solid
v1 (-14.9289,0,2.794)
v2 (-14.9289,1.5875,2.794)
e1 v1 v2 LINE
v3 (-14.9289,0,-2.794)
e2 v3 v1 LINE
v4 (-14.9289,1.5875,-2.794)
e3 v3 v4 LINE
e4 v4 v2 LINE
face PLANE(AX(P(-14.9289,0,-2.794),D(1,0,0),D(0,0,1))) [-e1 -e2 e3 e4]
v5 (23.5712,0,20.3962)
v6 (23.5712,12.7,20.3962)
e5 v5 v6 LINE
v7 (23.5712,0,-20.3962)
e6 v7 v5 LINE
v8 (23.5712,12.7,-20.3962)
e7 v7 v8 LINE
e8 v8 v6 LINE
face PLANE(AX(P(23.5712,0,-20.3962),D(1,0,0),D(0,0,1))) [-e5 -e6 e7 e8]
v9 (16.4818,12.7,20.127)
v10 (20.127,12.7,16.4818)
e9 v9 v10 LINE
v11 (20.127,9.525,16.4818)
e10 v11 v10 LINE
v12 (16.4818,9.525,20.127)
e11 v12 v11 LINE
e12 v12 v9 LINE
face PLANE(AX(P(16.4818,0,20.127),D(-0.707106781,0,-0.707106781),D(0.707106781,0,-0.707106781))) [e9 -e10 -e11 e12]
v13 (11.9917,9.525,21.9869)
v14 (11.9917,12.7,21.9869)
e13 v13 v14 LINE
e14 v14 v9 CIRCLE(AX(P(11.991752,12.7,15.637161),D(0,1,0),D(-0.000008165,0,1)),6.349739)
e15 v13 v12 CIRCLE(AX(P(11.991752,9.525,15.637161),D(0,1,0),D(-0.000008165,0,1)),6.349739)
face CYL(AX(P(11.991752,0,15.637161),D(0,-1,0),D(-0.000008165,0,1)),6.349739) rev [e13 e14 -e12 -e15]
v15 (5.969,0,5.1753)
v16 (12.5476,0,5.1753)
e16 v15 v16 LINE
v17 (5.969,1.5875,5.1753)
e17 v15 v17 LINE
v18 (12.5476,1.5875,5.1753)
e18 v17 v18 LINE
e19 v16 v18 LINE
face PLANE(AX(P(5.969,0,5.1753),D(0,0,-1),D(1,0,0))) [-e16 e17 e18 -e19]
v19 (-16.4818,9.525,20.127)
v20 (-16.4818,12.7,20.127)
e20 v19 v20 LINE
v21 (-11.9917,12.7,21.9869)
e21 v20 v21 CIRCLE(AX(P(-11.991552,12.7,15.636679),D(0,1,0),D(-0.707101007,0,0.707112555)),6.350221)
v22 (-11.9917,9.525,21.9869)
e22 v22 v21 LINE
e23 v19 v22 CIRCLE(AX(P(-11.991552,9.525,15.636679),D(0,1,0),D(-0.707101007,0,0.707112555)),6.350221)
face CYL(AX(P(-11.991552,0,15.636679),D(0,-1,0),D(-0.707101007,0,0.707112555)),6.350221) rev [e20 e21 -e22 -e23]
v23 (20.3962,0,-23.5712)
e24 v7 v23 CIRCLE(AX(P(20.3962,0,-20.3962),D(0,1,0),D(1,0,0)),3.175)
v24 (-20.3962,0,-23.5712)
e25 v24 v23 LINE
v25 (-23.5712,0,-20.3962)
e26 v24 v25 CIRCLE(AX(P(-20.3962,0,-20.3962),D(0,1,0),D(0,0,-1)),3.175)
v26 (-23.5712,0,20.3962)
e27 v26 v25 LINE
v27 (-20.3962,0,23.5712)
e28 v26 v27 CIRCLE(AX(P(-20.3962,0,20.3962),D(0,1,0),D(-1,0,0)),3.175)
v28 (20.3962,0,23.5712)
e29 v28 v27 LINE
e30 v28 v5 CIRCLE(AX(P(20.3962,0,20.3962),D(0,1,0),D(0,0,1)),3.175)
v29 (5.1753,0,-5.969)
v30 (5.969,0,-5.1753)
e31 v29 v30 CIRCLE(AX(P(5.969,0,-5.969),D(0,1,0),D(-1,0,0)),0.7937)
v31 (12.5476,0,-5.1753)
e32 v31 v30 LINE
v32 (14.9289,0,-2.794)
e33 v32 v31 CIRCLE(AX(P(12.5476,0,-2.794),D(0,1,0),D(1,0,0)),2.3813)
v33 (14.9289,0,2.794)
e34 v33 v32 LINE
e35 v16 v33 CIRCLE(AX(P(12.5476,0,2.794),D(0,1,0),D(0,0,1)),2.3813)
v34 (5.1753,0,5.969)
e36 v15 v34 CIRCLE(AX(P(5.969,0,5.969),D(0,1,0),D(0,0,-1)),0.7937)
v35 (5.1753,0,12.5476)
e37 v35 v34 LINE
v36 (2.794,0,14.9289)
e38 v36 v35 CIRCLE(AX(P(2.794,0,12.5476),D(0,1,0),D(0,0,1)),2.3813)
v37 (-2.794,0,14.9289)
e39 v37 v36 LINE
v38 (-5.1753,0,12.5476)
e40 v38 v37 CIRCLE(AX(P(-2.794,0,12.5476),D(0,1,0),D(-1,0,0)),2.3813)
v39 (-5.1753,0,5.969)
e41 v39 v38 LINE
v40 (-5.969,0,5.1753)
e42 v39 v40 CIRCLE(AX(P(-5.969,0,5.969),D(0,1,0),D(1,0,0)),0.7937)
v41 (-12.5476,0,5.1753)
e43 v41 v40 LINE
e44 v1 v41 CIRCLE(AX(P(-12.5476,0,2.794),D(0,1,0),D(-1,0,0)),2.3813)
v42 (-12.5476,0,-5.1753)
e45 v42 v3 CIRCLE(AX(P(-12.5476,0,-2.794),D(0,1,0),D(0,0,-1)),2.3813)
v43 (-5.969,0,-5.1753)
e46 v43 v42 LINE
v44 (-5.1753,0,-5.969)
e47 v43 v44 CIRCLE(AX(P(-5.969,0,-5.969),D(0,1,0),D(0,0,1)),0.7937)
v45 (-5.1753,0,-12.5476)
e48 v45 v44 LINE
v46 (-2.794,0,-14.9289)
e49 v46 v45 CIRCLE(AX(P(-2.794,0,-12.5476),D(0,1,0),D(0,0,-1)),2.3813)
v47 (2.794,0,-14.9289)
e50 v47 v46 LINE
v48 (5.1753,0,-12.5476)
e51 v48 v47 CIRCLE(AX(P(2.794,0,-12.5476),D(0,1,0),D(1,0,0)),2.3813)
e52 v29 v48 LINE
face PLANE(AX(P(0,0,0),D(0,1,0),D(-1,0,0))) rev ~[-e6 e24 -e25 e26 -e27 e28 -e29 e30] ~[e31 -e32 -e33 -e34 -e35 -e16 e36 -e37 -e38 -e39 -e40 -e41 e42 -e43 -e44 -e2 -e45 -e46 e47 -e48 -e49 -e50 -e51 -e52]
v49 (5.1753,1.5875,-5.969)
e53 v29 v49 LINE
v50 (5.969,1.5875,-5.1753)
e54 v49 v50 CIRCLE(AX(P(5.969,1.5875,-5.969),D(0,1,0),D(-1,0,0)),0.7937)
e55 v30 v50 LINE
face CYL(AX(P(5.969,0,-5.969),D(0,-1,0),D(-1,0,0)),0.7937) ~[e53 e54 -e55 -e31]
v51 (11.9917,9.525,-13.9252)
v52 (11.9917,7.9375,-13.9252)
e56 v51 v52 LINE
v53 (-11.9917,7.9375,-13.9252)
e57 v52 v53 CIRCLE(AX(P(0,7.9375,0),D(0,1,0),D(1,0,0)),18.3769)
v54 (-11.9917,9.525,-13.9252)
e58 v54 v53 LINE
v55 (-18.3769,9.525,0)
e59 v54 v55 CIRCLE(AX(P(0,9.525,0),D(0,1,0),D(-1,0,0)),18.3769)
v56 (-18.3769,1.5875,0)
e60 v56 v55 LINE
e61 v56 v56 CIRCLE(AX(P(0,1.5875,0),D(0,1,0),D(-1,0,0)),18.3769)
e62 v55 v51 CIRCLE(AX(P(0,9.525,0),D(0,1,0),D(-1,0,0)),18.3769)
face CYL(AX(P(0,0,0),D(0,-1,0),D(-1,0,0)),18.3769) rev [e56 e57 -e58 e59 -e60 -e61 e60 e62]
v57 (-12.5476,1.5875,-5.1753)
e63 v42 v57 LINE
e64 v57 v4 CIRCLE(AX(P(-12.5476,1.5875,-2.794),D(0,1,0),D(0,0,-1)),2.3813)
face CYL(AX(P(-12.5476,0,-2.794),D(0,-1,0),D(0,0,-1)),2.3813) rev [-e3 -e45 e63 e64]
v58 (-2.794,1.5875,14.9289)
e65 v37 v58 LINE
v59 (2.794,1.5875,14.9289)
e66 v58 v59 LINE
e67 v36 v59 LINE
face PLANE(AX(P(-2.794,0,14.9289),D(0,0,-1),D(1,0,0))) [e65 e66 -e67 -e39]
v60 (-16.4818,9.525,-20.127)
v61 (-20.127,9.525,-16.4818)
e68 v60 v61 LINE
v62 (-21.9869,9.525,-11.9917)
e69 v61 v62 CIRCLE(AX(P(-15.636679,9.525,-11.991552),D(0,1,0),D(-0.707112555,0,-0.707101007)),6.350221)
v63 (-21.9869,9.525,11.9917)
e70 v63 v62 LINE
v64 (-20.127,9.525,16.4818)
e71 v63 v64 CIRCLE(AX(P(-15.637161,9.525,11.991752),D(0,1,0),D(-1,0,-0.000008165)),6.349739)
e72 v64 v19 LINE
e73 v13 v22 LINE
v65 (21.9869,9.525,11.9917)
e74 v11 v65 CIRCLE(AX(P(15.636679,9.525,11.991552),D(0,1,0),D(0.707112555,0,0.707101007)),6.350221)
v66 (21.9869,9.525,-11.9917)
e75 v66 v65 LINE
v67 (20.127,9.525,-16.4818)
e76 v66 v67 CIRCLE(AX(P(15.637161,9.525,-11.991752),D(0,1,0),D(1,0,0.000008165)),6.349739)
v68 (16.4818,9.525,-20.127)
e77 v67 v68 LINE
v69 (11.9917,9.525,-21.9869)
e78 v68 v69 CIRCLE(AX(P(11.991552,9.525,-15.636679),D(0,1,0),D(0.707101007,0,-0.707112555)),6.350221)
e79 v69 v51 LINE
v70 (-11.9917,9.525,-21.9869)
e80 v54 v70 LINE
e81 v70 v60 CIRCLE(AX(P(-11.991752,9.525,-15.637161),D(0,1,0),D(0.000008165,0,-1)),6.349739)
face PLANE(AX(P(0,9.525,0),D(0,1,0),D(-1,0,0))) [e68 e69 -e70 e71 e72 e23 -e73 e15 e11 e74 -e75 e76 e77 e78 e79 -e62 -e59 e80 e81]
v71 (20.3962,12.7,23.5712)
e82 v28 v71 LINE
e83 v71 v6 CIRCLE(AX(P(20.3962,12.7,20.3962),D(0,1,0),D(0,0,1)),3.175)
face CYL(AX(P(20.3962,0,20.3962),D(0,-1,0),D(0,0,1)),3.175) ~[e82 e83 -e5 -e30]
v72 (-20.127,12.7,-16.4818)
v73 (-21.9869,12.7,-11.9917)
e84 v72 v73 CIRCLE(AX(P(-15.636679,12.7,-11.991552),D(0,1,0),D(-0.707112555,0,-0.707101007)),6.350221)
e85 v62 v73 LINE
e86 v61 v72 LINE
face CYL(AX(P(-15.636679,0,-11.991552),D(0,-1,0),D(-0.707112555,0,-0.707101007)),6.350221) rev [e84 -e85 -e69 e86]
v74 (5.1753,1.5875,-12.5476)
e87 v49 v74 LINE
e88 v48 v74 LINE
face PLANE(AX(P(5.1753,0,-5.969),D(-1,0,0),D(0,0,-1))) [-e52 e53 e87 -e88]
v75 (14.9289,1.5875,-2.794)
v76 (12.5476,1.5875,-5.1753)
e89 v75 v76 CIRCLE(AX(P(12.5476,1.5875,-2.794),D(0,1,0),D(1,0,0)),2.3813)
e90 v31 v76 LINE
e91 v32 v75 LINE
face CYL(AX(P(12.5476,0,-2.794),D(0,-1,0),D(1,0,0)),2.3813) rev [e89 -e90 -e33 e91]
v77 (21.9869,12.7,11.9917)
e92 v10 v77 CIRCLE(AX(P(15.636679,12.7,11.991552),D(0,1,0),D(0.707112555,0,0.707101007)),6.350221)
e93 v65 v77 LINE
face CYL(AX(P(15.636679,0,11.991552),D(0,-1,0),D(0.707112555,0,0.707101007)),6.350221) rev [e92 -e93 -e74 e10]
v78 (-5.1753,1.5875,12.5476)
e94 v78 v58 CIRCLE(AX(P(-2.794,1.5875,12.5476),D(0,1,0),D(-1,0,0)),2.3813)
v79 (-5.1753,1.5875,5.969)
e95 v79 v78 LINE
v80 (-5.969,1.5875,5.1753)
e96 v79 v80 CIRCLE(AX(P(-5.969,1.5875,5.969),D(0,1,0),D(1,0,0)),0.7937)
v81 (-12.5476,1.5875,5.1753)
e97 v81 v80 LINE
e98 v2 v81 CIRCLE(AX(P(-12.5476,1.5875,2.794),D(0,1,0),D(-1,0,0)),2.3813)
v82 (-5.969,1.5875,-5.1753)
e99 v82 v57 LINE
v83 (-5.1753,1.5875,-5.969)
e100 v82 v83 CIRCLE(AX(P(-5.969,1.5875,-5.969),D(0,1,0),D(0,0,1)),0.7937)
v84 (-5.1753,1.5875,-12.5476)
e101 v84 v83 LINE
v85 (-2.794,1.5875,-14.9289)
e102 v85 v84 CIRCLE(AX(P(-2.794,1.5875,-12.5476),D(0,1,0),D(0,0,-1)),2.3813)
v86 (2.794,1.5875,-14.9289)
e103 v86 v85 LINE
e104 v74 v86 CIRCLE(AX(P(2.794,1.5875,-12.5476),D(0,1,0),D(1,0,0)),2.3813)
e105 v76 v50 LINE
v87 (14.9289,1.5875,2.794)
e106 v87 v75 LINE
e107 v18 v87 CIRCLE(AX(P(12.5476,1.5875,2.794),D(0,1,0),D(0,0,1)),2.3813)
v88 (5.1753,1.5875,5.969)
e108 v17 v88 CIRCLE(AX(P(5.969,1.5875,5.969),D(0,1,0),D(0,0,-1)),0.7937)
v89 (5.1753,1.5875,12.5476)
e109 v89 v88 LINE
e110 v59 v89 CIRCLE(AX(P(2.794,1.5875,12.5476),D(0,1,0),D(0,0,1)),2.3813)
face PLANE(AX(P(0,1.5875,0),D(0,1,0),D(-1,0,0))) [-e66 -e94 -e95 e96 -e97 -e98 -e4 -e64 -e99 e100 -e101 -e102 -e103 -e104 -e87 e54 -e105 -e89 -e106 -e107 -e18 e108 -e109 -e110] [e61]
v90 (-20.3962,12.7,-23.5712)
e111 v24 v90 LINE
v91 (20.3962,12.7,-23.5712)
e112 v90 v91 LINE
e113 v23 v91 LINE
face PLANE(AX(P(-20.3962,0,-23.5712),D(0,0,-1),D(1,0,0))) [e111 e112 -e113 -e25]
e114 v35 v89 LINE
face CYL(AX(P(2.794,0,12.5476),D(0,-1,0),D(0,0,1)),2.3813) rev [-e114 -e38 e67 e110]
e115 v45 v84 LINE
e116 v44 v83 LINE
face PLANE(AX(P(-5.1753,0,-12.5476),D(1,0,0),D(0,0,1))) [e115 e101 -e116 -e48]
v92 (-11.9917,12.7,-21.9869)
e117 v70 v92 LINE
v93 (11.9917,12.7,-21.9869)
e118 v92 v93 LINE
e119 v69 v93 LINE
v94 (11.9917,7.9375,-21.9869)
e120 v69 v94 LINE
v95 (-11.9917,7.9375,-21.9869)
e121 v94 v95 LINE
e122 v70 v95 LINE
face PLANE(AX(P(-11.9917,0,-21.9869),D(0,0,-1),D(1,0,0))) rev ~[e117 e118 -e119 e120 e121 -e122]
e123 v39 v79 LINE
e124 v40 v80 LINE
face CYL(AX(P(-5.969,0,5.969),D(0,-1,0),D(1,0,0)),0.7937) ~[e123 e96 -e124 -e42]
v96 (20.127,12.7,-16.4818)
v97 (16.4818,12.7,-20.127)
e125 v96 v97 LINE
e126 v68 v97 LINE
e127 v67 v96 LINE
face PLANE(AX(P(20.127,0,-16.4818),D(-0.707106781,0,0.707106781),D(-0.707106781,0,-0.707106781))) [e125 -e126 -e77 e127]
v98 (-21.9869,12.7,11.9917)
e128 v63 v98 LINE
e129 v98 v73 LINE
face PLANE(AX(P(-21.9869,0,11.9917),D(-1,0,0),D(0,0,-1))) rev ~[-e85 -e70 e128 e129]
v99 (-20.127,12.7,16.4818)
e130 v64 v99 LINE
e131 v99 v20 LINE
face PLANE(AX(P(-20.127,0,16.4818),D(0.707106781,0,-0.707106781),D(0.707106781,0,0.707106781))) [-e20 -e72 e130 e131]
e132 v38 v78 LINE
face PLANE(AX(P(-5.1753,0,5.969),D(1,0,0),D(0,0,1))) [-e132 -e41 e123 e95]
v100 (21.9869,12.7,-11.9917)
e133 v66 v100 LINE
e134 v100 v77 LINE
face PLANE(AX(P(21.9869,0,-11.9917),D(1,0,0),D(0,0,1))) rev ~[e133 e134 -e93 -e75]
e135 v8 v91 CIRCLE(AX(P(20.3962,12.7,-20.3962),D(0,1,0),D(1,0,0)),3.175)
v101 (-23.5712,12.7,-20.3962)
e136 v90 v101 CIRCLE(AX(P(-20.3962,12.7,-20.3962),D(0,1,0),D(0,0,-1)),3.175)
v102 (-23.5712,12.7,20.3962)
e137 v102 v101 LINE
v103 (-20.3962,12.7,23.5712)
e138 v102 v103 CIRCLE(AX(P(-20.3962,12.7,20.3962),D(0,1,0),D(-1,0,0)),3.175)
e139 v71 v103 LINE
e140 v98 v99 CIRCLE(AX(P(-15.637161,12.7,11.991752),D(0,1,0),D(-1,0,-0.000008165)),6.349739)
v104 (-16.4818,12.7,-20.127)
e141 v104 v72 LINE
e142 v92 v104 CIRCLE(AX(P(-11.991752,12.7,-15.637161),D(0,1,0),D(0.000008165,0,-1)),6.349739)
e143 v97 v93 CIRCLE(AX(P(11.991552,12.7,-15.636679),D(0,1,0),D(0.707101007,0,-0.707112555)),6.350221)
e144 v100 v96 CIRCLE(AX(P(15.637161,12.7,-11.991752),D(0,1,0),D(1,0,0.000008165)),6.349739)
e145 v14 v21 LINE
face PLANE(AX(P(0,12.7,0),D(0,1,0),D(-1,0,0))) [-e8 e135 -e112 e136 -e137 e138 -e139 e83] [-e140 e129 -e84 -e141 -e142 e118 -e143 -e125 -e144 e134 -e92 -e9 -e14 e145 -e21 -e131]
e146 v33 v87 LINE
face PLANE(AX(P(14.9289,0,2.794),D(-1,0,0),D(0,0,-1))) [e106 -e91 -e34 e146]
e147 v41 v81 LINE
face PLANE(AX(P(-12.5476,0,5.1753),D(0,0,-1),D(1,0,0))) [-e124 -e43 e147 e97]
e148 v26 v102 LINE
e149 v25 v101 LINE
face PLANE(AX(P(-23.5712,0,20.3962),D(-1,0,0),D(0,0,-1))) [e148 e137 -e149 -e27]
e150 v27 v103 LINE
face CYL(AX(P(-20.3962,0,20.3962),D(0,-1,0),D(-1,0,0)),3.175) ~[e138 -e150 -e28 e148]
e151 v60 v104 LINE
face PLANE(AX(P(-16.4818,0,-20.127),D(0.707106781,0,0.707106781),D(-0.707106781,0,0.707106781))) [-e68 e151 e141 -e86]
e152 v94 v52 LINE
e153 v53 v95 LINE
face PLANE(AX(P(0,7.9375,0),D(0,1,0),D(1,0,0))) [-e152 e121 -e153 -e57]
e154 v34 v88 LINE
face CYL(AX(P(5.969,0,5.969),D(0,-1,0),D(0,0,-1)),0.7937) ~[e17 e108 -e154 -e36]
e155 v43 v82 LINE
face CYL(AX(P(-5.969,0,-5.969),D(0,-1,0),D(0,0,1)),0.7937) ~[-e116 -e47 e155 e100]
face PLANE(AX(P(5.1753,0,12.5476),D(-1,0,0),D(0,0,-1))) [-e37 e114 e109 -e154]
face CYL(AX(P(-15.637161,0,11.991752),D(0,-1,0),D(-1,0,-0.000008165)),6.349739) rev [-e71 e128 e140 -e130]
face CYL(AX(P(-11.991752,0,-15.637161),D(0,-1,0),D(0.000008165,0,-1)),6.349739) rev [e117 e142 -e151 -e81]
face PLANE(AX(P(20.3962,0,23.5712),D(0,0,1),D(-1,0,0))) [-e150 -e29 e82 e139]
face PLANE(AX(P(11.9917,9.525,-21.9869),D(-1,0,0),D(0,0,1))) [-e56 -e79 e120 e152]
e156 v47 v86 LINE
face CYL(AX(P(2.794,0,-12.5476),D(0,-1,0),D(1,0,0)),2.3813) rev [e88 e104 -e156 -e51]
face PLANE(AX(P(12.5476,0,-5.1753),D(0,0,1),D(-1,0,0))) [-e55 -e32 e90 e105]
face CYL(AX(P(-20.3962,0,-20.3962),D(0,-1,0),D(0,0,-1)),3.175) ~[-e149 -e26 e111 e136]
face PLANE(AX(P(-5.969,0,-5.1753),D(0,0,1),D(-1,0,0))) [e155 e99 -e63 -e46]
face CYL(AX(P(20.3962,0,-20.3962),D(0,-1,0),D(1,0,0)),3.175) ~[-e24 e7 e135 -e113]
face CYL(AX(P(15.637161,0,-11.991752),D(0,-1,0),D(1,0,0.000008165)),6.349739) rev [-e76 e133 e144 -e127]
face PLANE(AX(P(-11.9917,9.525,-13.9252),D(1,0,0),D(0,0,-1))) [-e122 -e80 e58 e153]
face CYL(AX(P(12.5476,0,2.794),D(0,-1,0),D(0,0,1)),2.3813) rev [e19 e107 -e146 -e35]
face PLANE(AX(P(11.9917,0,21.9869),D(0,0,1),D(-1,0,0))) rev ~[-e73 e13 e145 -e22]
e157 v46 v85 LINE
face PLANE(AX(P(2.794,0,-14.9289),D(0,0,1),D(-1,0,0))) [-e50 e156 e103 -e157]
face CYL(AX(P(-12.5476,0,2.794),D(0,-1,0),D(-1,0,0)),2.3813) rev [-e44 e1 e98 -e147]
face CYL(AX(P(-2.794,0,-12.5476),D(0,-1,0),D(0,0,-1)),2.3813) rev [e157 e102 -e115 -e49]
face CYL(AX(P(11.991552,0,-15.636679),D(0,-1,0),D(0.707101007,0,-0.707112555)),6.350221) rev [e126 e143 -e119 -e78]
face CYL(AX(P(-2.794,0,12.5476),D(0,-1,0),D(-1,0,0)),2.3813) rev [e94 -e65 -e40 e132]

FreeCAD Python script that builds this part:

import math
import FreeCAD as App
import Part
import Sketcher
Q = App.Units.Quantity

doc = App.newDocument("Part")
params = doc.addObject("Spreadsheet::Sheet", "Params")
for row, (alias, value) in enumerate([
    ("sketch1_radius", "0.25 in"),
    ("sketch1_diameter", "0.079 in"),
    ("sketch1_radius2", "0.125 in"),
    ("sketch1_width", "1.606 in"),
    ("pad1_length", "0.5 in"),
    ("sketch2_radius", "0.25 in"),
    ("sketch2_diameter", "1.447 in"),
    ("sketch2_diameter2", "0.079 in"),
    ("pad2_length", "0.375 in"),
    ("sketch3_diameter", "0.079 in"),
    ("pad3_length", "0.375 in"),
    ("sketch4_diameter", "0.079 in"),
    ("pad4_length", "0.5 in"),
    ("sketch5_diameter", "1.447 in"),
    ("sketch5_radius", "0.031248 in"),
    ("sketch5_radius2", "0.093752 in"),
    ("pad5_length", "0.0625 in"),
    ("pocket1_length", "0.0625 in"),
], start=1):
    params.set(f"A{row}", alias)
    params.set(f"B{row}", "=" + value)
    params.setAlias(f"B{row}", alias)

body = doc.addObject("PartDesign::Body", "Body")

sketch1 = body.newObject("Sketcher::SketchObject", "Sketch")
sketch1.AttachmentSupport = (doc.getObject("XZ_Plane"), [""])
sketch1.MapMode = "FlatFace"
sketch1.addGeometry([
    Part.LineSegment(App.Vector(-20.4, 23.6, 0), App.Vector(20.4, 23.6, 0)),
    Part.ArcOfCircle(Part.Circle(App.Vector(20.4, 20.4, 0), App.Vector(0, 0, 1), 3.2), math.radians(0), math.radians(90)),
    Part.LineSegment(App.Vector(23.6, 20.4, 0), App.Vector(23.6, -20.4, 0)),
    Part.ArcOfCircle(Part.Circle(App.Vector(20.4, -20.4, 0), App.Vector(0, 0, 1), 3.2), math.radians(-90), math.radians(0)),
    Part.LineSegment(App.Vector(20.4, -23.6, 0), App.Vector(-20.4, -23.6, 0)),
    Part.ArcOfCircle(Part.Circle(App.Vector(-20.4, -20.4, 0), App.Vector(0, 0, 1), 3.2), math.radians(180), math.radians(270)),
    Part.LineSegment(App.Vector(-23.6, -20.4, 0), App.Vector(-23.6, 20.4, 0)),
    Part.ArcOfCircle(Part.Circle(App.Vector(-20.4, 20.4, 0), App.Vector(0, 0, 1), 3.2), math.radians(90), math.radians(180)),
    Part.Circle(App.Vector(20.4, -20.4, 0), App.Vector(0, 0, 1), 1),
    Part.Circle(App.Vector(-20.4, -20.4, 0), App.Vector(0, 0, 1), 1),
    Part.Circle(App.Vector(20.4, 20.4, 0), App.Vector(0, 0, 1), 1),
    Part.ArcOfCircle(Part.Circle(App.Vector(-12, -15.6, 0), App.Vector(0, 0, 1), 6.3), math.radians(-135), math.radians(-90)),
    Part.LineSegment(App.Vector(-12, -22, 0), App.Vector(12, -22, 0)),
    Part.ArcOfCircle(Part.Circle(App.Vector(12, -15.6, 0), App.Vector(0, 0, 1), 6.3), math.radians(-90), math.radians(-45)),
    Part.LineSegment(App.Vector(16.5, -20.1, 0), App.Vector(20.1, -16.5, 0)),
    Part.ArcOfCircle(Part.Circle(App.Vector(15.6, -12, 0), App.Vector(0, 0, 1), 6.3), math.radians(-45), math.radians(0)),
    Part.LineSegment(App.Vector(22, -12, 0), App.Vector(22, 12, 0)),
    Part.ArcOfCircle(Part.Circle(App.Vector(15.6, 12, 0), App.Vector(0, 0, 1), 6.3), math.radians(0), math.radians(45)),
    Part.LineSegment(App.Vector(20.1, 16.5, 0), App.Vector(16.5, 20.1, 0)),
    Part.ArcOfCircle(Part.Circle(App.Vector(12, 15.6, 0), App.Vector(0, 0, 1), 6.3), math.radians(45), math.radians(90)),
    Part.LineSegment(App.Vector(12, 22, 0), App.Vector(-12, 22, 0)),
    Part.ArcOfCircle(Part.Circle(App.Vector(-12, 15.6, 0), App.Vector(0, 0, 1), 6.3), math.radians(90), math.radians(135)),
    Part.LineSegment(App.Vector(-16.5, 20.1, 0), App.Vector(-20.1, 16.5, 0)),
    Part.ArcOfCircle(Part.Circle(App.Vector(-15.6, 12, 0), App.Vector(0, 0, 1), 6.3), math.radians(135), math.radians(180)),
    Part.LineSegment(App.Vector(-22, 12, 0), App.Vector(-22, -12, 0)),
    Part.ArcOfCircle(Part.Circle(App.Vector(-15.6, -12, 0), App.Vector(0, 0, 1), 6.3), math.radians(180), math.radians(225)),
    Part.LineSegment(App.Vector(-20.1, -16.5, 0), App.Vector(-16.5, -20.1, 0)),
    Part.Circle(App.Vector(-20.4, 20.4, 0), App.Vector(0, 0, 1), 1),
], False)
sketch1.addConstraint([
    Sketcher.Constraint("Tangent", 0, 2, 1, 2),
    Sketcher.Constraint("Tangent", 1, 1, 2, 1),
    Sketcher.Constraint("Tangent", 2, 2, 3, 2),
    Sketcher.Constraint("Tangent", 3, 1, 4, 1),
    Sketcher.Constraint("Tangent", 4, 2, 5, 2),
    Sketcher.Constraint("Tangent", 5, 1, 6, 1),
    Sketcher.Constraint("Tangent", 6, 2, 7, 2),
    Sketcher.Constraint("Tangent", 7, 1, 0, 1),
    Sketcher.Constraint("Tangent", 11, 2, 12, 1),
    Sketcher.Constraint("Tangent", 12, 2, 13, 1),
    Sketcher.Constraint("Tangent", 13, 2, 14, 1),
    Sketcher.Constraint("Tangent", 14, 2, 15, 1),
    Sketcher.Constraint("Tangent", 15, 2, 16, 1),
    Sketcher.Constraint("Tangent", 16, 2, 17, 1),
    Sketcher.Constraint("Tangent", 17, 2, 18, 1),
    Sketcher.Constraint("Tangent", 18, 2, 19, 1),
    Sketcher.Constraint("Tangent", 19, 2, 20, 1),
    Sketcher.Constraint("Tangent", 20, 2, 21, 1),
    Sketcher.Constraint("Tangent", 21, 2, 22, 1),
    Sketcher.Constraint("Tangent", 22, 2, 23, 1),
    Sketcher.Constraint("Tangent", 23, 2, 24, 1),
    Sketcher.Constraint("Tangent", 24, 2, 25, 1),
    Sketcher.Constraint("Tangent", 25, 2, 26, 1),
    Sketcher.Constraint("Tangent", 26, 2, 11, 1),
    Sketcher.Constraint("Horizontal", 0),
    Sketcher.Constraint("Vertical", 2),
    Sketcher.Constraint("Horizontal", 4),
    Sketcher.Constraint("Vertical", 6),
    Sketcher.Constraint("Horizontal", 12),
    Sketcher.Constraint("Vertical", 16),
    Sketcher.Constraint("Horizontal", 20),
    Sketcher.Constraint("Vertical", 24),
    Sketcher.Constraint("Coincident", 8, 3, 3, 3),
    Sketcher.Constraint("Coincident", 9, 3, 5, 3),
    Sketcher.Constraint("Coincident", 10, 3, 1, 3),
    Sketcher.Constraint("Coincident", 27, 3, 7, 3),
    Sketcher.Constraint("Equal", 1, 3),
    Sketcher.Constraint("Equal", 3, 5),
    Sketcher.Constraint("Equal", 5, 7),
    Sketcher.Constraint("Equal", 8, 9),
    Sketcher.Constraint("Equal", 9, 10),
    Sketcher.Constraint("Equal", 11, 13),
    Sketcher.Constraint("Equal", 13, 15),
    Sketcher.Constraint("Equal", 15, 17),
    Sketcher.Constraint("Equal", 17, 19),
    Sketcher.Constraint("Equal", 19, 21),
    Sketcher.Constraint("Equal", 21, 23),
    Sketcher.Constraint("Equal", 23, 25),
    Sketcher.Constraint("Equal", 10, 27),
    Sketcher.Constraint("Symmetric", 1, 3, 5, 3, -1, 1),
    Sketcher.Constraint("Symmetric", 11, 3, 19, 3, -1, 1),
    Sketcher.Constraint("Symmetric", 15, 3, 23, 3, -1, 1),
    Sketcher.Constraint("Symmetric", 18, 2, 21, 2, -2),
    Sketcher.Constraint("Symmetric", 14, 2, 25, 2, -2),
    Sketcher.Constraint("Perpendicular", 14, 18),
    Sketcher.Constraint("Equal", 4, 2),
    Sketcher.Constraint("Equal", 20, 16),
    Sketcher.Constraint("Radius", 11, Q("0.25 in")),
    Sketcher.Constraint("Diameter", 8, Q("0.079 in")),
    Sketcher.Constraint("Radius", 1, Q("0.125 in")),
    Sketcher.Constraint("DistanceX", 0, 1, 0, 2, Q("1.606 in")),
    Sketcher.Constraint("DistanceX", 12, 1, 12, 2, 23.9834),
    Sketcher.Constraint("DistanceY", 13, 2, -1, 1, Q("0.7924 in")),
])
sketch1.setExpression("Constraints[57]", "Params.sketch1_radius")
sketch1.setExpression("Constraints[58]", "Params.sketch1_diameter")
sketch1.setExpression("Constraints[59]", "Params.sketch1_radius2")
sketch1.setExpression("Constraints[60]", "Params.sketch1_width")
pad1 = body.newObject("PartDesign::Pad", "Pad")
pad1.Profile = sketch1
pad1.setExpression("Length", "Params.pad1_length")
pad1.Reversed = True

sketch2 = body.newObject("Sketcher::SketchObject", "Sketch001")
sketch2.AttachmentSupport = (doc.getObject("XZ_Plane"), [""])
sketch2.MapMode = "FlatFace"
sketch2.addGeometry([
    Part.LineSegment(App.Vector(12, -22, 0), App.Vector(-12, -22, 0)),
    Part.ArcOfCircle(Part.Circle(App.Vector(-12, -15.6, 0), App.Vector(0, 0, 1), 6.3), math.radians(-135), math.radians(-90)),
    Part.LineSegment(App.Vector(-16.5, -20.1, 0), App.Vector(-20.1, -16.5, 0)),
    Part.ArcOfCircle(Part.Circle(App.Vector(-15.6, -12, 0), App.Vector(0, 0, 1), 6.3), math.radians(180), math.radians(225)),
    Part.LineSegment(App.Vector(-22, -12, 0), App.Vector(-22, 12, 0)),
    Part.ArcOfCircle(Part.Circle(App.Vector(-15.6, 12, 0), App.Vector(0, 0, 1), 6.3), math.radians(135), math.radians(180)),
    Part.LineSegment(App.Vector(-20.1, 16.5, 0), App.Vector(-16.5, 20.1, 0)),
    Part.ArcOfCircle(Part.Circle(App.Vector(-12, 15.6, 0), App.Vector(0, 0, 1), 6.3), math.radians(90), math.radians(135)),
    Part.LineSegment(App.Vector(-12, 22, 0), App.Vector(12, 22, 0)),
    Part.ArcOfCircle(Part.Circle(App.Vector(12, 15.6, 0), App.Vector(0, 0, 1), 6.3), math.radians(45), math.radians(90)),
    Part.LineSegment(App.Vector(16.5, 20.1, 0), App.Vector(20.1, 16.5, 0)),
    Part.ArcOfCircle(Part.Circle(App.Vector(15.6, 12, 0), App.Vector(0, 0, 1), 6.3), math.radians(0), math.radians(45)),
    Part.LineSegment(App.Vector(22, 12, 0), App.Vector(22, -12, 0)),
    Part.ArcOfCircle(Part.Circle(App.Vector(15.6, -12, 0), App.Vector(0, 0, 1), 6.3), math.radians(-45), math.radians(0)),
    Part.LineSegment(App.Vector(20.1, -16.5, 0), App.Vector(16.5, -20.1, 0)),
    Part.ArcOfCircle(Part.Circle(App.Vector(12, -15.6, 0), App.Vector(0, 0, 1), 6.3), math.radians(-90), math.radians(-45)),
    Part.Circle(App.Vector(0, 0, 0), App.Vector(0, 0, 1), 18.4),
    Part.Circle(App.Vector(15.2, -15.2, 0), App.Vector(0, 0, 1), 1),
    Part.Circle(App.Vector(-15.2, -15.2, 0), App.Vector(0, 0, 1), 1),
    Part.Circle(App.Vector(15.2, 15.2, 0), App.Vector(0, 0, 1), 1),
    Part.Circle(App.Vector(-15.2, 15.2, 0), App.Vector(0, 0, 1), 1),
], False)
sketch2.addConstraint([
    Sketcher.Constraint("Tangent", 0, 2, 1, 2),
    Sketcher.Constraint("Tangent", 1, 1, 2, 1),
    Sketcher.Constraint("Tangent", 2, 2, 3, 2),
    Sketcher.Constraint("Tangent", 3, 1, 4, 1),
    Sketcher.Constraint("Tangent", 4, 2, 5, 2),
    Sketcher.Constraint("Tangent", 5, 1, 6, 1),
    Sketcher.Constraint("Tangent", 6, 2, 7, 2),
    Sketcher.Constraint("Tangent", 7, 1, 8, 1),
    Sketcher.Constraint("Tangent", 8, 2, 9, 2),
    Sketcher.Constraint("Tangent", 9, 1, 10, 1),
    Sketcher.Constraint("Tangent", 10, 2, 11, 2),
    Sketcher.Constraint("Tangent", 11, 1, 12, 1),
    Sketcher.Constraint("Tangent", 12, 2, 13, 2),
    Sketcher.Constraint("Tangent", 13, 1, 14, 1),
    Sketcher.Constraint("Tangent", 14, 2, 15, 2),
    Sketcher.Constraint("Tangent", 15, 1, 0, 1),
    Sketcher.Constraint("Horizontal", 0),
    Sketcher.Constraint("Vertical", 4),
    Sketcher.Constraint("Horizontal", 8),
    Sketcher.Constraint("Vertical", 12),
    Sketcher.Constraint("Coincident", 16, 3, -1, 1),
    Sketcher.Constraint("Equal", 1, 3),
    Sketcher.Constraint("Equal", 3, 5),
    Sketcher.Constraint("Equal", 5, 7),
    Sketcher.Constraint("Equal", 7, 9),
    Sketcher.Constraint("Equal", 9, 11),
    Sketcher.Constraint("Equal", 11, 13),
    Sketcher.Constraint("Equal", 13, 15),
    Sketcher.Constraint("Equal", 17, 18),
    Sketcher.Constraint("Equal", 18, 19),
    Sketcher.Constraint("Equal", 19, 20),
    Sketcher.Constraint("Symmetric", 1, 3, 9, 3, -1, 1),
    Sketcher.Constraint("Symmetric", 3, 3, 11, 3, -1, 1),
    Sketcher.Constraint("Symmetric", 18, 3, 19, 3, -1, 1),
    Sketcher.Constraint("Symmetric", 17, 3, 20, 3, -1, 1),
    Sketcher.Constraint("Symmetric", 5, 1, 13, 1, -1, 1),
    Sketcher.Constraint("Symmetric", 17, 3, 18, 3, -2),
    Sketcher.Constraint("Symmetric", 6, 2, 9, 1, -2),
    Sketcher.Constraint("Perpendicular", 2, 6),
    Sketcher.Constraint("Equal", 8, 4),
    Sketcher.Constraint("Radius", 1, Q("0.25 in")),
    Sketcher.Constraint("Diameter", 16, Q("1.447 in")),
    Sketcher.Constraint("Diameter", 17, Q("0.079 in")),
    Sketcher.Constraint("DistanceX", 17, 3, 13, 3, Q("0.0156299 in")),
    Sketcher.Constraint("DistanceY", 15, 3, 17, 3, Q("0.0156299 in")),
    Sketcher.Constraint("DistanceX", -1, 1, 17, 3, Q("0.6 in")),
    Sketcher.Constraint("DistanceX", 0, 2, 0, 1, 23.9834),
])
sketch2.setExpression("Constraints[40]", "Params.sketch2_radius")
sketch2.setExpression("Constraints[41]", "Params.sketch2_diameter")
sketch2.setExpression("Constraints[42]", "Params.sketch2_diameter2")
pad2 = body.newObject("PartDesign::Pad", "Pad001")
pad2.Profile = sketch2
pad2.setExpression("Length", "Params.pad2_length")
pad2.Reversed = True

sketch3 = body.newObject("Sketcher::SketchObject", "Sketch002")
sketch3.AttachmentSupport = (doc.getObject("XZ_Plane"), [""])
sketch3.MapMode = "FlatFace"
sketch3.addGeometry([
    Part.Circle(App.Vector(-15.2, -15.2, 0), App.Vector(0, 0, 1), 1),
    Part.Circle(App.Vector(15.2, -15.2, 0), App.Vector(0, 0, 1), 1),
    Part.Circle(App.Vector(15.2, 15.2, 0), App.Vector(0, 0, 1), 1),
    Part.Circle(App.Vector(-15.2, 15.2, 0), App.Vector(0, 0, 1), 1),
], False)
sketch3.addConstraint([
    Sketcher.Constraint("Equal", 0, 1),
    Sketcher.Constraint("Equal", 1, 2),
    Sketcher.Constraint("Equal", 2, 3),
    Sketcher.Constraint("Symmetric", 0, 3, 2, 3, -1, 1),
    Sketcher.Constraint("Symmetric", 1, 3, 3, 3, -1, 1),
    Sketcher.Constraint("Symmetric", 0, 3, 1, 3, -2),
    Sketcher.Constraint("Diameter", 0, Q("0.079 in")),
    Sketcher.Constraint("DistanceX", 0, 3, -1, 1, Q("0.6 in")),
    Sketcher.Constraint("DistanceY", 0, 3, -1, 1, Q("0.6 in")),
])
sketch3.setExpression("Constraints[6]", "Params.sketch3_diameter")
pad3 = body.newObject("PartDesign::Pad", "Pad002")
pad3.Profile = sketch3
pad3.setExpression("Length", "Params.pad3_length")
pad3.Reversed = True

sketch4 = body.newObject("Sketcher::SketchObject", "Sketch003")
sketch4.AttachmentSupport = (doc.getObject("XZ_Plane"), [""])
sketch4.MapMode = "FlatFace"
sketch4.addGeometry([
    Part.Circle(App.Vector(-20.4, -20.4, 0), App.Vector(0, 0, 1), 1),
    Part.Circle(App.Vector(20.4, -20.4, 0), App.Vector(0, 0, 1), 1),
    Part.Circle(App.Vector(20.4, 20.4, 0), App.Vector(0, 0, 1), 1),
    Part.Circle(App.Vector(-20.4, 20.4, 0), App.Vector(0, 0, 1), 1),
], False)
sketch4.addConstraint([
    Sketcher.Constraint("Equal", 0, 1),
    Sketcher.Constraint("Equal", 1, 2),
    Sketcher.Constraint("Equal", 2, 3),
    Sketcher.Constraint("Symmetric", 0, 3, 2, 3, -1, 1),
    Sketcher.Constraint("Symmetric", 1, 3, 3, 3, -1, 1),
    Sketcher.Constraint("Symmetric", 0, 3, 1, 3, -2),
    Sketcher.Constraint("Diameter", 0, Q("0.079 in")),
    Sketcher.Constraint("DistanceX", 0, 3, -1, 1, Q("0.803 in")),
    Sketcher.Constraint("DistanceY", 0, 3, -1, 1, Q("0.803 in")),
])
sketch4.setExpression("Constraints[6]", "Params.sketch4_diameter")
pad4 = body.newObject("PartDesign::Pad", "Pad003")
pad4.Profile = sketch4
pad4.setExpression("Length", "Params.pad4_length")
pad4.Reversed = True

sketch5 = body.newObject("Sketcher::SketchObject", "Sketch004")
sketch5.AttachmentSupport = (doc.getObject("XZ_Plane"), [""])
sketch5.MapMode = "FlatFace"
sketch5.addGeometry([
    Part.Circle(App.Vector(0, 0, 0), App.Vector(0, 0, 1), 18.4),
    Part.LineSegment(App.Vector(-2.8, -14.9, 0), App.Vector(2.8, -14.9, 0)),
    Part.ArcOfCircle(Part.Circle(App.Vector(2.8, -12.5, 0), App.Vector(0, 0, 1), 2.4), math.radians(-90), math.radians(0)),
    Part.LineSegment(App.Vector(5.2, -12.5, 0), App.Vector(5.2, -6, 0)),
    Part.ArcOfCircle(Part.Circle(App.Vector(6, -6, 0), App.Vector(0, 0, 1), 0.8), math.radians(90), math.radians(180)),
    Part.LineSegment(App.Vector(6, -5.2, 0), App.Vector(12.5, -5.2, 0)),
    Part.ArcOfCircle(Part.Circle(App.Vector(12.5, -2.8, 0), App.Vector(0, 0, 1), 2.4), math.radians(-90), math.radians(0)),
    Part.LineSegment(App.Vector(14.9, -2.8, 0), App.Vector(14.9, 2.8, 0)),
    Part.ArcOfCircle(Part.Circle(App.Vector(12.5, 2.8, 0), App.Vector(0, 0, 1), 2.4), math.radians(0), math.radians(90)),
    Part.LineSegment(App.Vector(12.5, 5.2, 0), App.Vector(6, 5.2, 0)),
    Part.ArcOfCircle(Part.Circle(App.Vector(6, 6, 0), App.Vector(0, 0, 1), 0.8), math.radians(180), math.radians(270)),
    Part.LineSegment(App.Vector(5.2, 6, 0), App.Vector(5.2, 12.5, 0)),
    Part.ArcOfCircle(Part.Circle(App.Vector(2.8, 12.5, 0), App.Vector(0, 0, 1), 2.4), math.radians(0), math.radians(90)),
    Part.LineSegment(App.Vector(2.8, 14.9, 0), App.Vector(-2.8, 14.9, 0)),
    Part.ArcOfCircle(Part.Circle(App.Vector(-2.8, 12.5, 0), App.Vector(0, 0, 1), 2.4), math.radians(90), math.radians(180)),
    Part.LineSegment(App.Vector(-5.2, 12.5, 0), App.Vector(-5.2, 6, 0)),
    Part.ArcOfCircle(Part.Circle(App.Vector(-6, 6, 0), App.Vector(0, 0, 1), 0.8), math.radians(-90), math.radians(0)),
    Part.LineSegment(App.Vector(-6, 5.2, 0), App.Vector(-12.5, 5.2, 0)),
    Part.ArcOfCircle(Part.Circle(App.Vector(-12.5, 2.8, 0), App.Vector(0, 0, 1), 2.4), math.radians(90), math.radians(180)),
    Part.LineSegment(App.Vector(-14.9, 2.8, 0), App.Vector(-14.9, -2.8, 0)),
    Part.ArcOfCircle(Part.Circle(App.Vector(-12.5, -2.8, 0), App.Vector(0, 0, 1), 2.4), math.radians(180), math.radians(270)),
    Part.LineSegment(App.Vector(-12.5, -5.2, 0), App.Vector(-6, -5.2, 0)),
    Part.ArcOfCircle(Part.Circle(App.Vector(-6, -6, 0), App.Vector(0, 0, 1), 0.8), math.radians(0), math.radians(90)),
    Part.LineSegment(App.Vector(-5.2, -6, 0), App.Vector(-5.2, -12.5, 0)),
    Part.ArcOfCircle(Part.Circle(App.Vector(-2.8, -12.5, 0), App.Vector(0, 0, 1), 2.4), math.radians(180), math.radians(270)),
], False)
sketch5.addConstraint([
    Sketcher.Constraint("Tangent", 1, 2, 2, 1),
    Sketcher.Constraint("Tangent", 2, 2, 3, 1),
    Sketcher.Constraint("Tangent", 3, 2, 4, 2),
    Sketcher.Constraint("Tangent", 4, 1, 5, 1),
    Sketcher.Constraint("Tangent", 5, 2, 6, 1),
    Sketcher.Constraint("Tangent", 6, 2, 7, 1),
    Sketcher.Constraint("Tangent", 7, 2, 8, 1),
    Sketcher.Constraint("Tangent", 8, 2, 9, 1),
    Sketcher.Constraint("Tangent", 9, 2, 10, 2),
    Sketcher.Constraint("Tangent", 10, 1, 11, 1),
    Sketcher.Constraint("Tangent", 11, 2, 12, 1),
    Sketcher.Constraint("Tangent", 12, 2, 13, 1),
    Sketcher.Constraint("Tangent", 13, 2, 14, 1),
    Sketcher.Constraint("Tangent", 14, 2, 15, 1),
    Sketcher.Constraint("Tangent", 15, 2, 16, 2),
    Sketcher.Constraint("Tangent", 16, 1, 17, 1),
    Sketcher.Constraint("Tangent", 17, 2, 18, 1),
    Sketcher.Constraint("Tangent", 18, 2, 19, 1),
    Sketcher.Constraint("Tangent", 19, 2, 20, 1),
    Sketcher.Constraint("Tangent", 20, 2, 21, 1),
    Sketcher.Constraint("Tangent", 21, 2, 22, 2),
    Sketcher.Constraint("Tangent", 22, 1, 23, 1),
    Sketcher.Constraint("Tangent", 23, 2, 24, 1),
    Sketcher.Constraint("Tangent", 24, 2, 1, 1),
    Sketcher.Constraint("Horizontal", 1),
    Sketcher.Constraint("Vertical", 3),
    Sketcher.Constraint("Horizontal", 5),
    Sketcher.Constraint("Vertical", 7),
    Sketcher.Constraint("Horizontal", 9),
    Sketcher.Constraint("Vertical", 11),
    Sketcher.Constraint("Horizontal", 13),
    Sketcher.Constraint("Vertical", 15),
    Sketcher.Constraint("Horizontal", 17),
    Sketcher.Constraint("Vertical", 19),
    Sketcher.Constraint("Horizontal", 21),
    Sketcher.Constraint("Vertical", 23),
    Sketcher.Constraint("Coincident", 0, 3, -1, 1),
    Sketcher.Constraint("Equal", 2, 6),
    Sketcher.Constraint("Equal", 6, 8),
    Sketcher.Constraint("Equal", 4, 10),
    Sketcher.Constraint("Equal", 8, 12),
    Sketcher.Constraint("Equal", 12, 14),
    Sketcher.Constraint("Equal", 10, 16),
    Sketcher.Constraint("Equal", 14, 18),
    Sketcher.Constraint("Equal", 18, 20),
    Sketcher.Constraint("Equal", 16, 22),
    Sketcher.Constraint("Equal", 20, 24),
    Sketcher.Constraint("Symmetric", 2, 3, 14, 3, -1, 1),
    Sketcher.Constraint("Symmetric", 6, 3, 18, 3, -1, 1),
    Sketcher.Constraint("Symmetric", 10, 3, 22, 3, -1, 1),
    Sketcher.Constraint("Symmetric", 10, 3, 16, 3, -2),
    Sketcher.Constraint("Equal", 21, 3),
    Sketcher.Constraint("Equal", 13, 7),
    Sketcher.Constraint("Diameter", 0, Q("1.447 in")),
    Sketcher.Constraint("Radius", 4, Q("0.031248 in")),
    Sketcher.Constraint("Radius", 2, Q("0.093752 in")),
    Sketcher.Constraint("DistanceX", 2, 3, 6, 3, Q("0.384 in")),
    Sketcher.Constraint("DistanceY", 4, 3, 8, 3, Q("0.345 in")),
])
sketch5.setExpression("Constraints[53]", "Params.sketch5_diameter")
sketch5.setExpression("Constraints[54]", "Params.sketch5_radius")
sketch5.setExpression("Constraints[55]", "Params.sketch5_radius2")
pad5 = body.newObject("PartDesign::Pad", "Pad004")
pad5.Profile = sketch5
pad5.setExpression("Length", "Params.pad5_length")
pad5.Reversed = True

sketch6 = body.newObject("Sketcher::SketchObject", "Sketch005")
sketch6.AttachmentSupport = (doc.getObject("XZ_Plane"), [""])
sketch6.MapMode = "FlatFace"
sketch6.AttachmentOffset = App.Placement(App.Vector(0, 0, -0.375 * 25.4), App.Rotation())
sketch6.addGeometry([
    Part.ArcOfCircle(Part.Circle(App.Vector(0, 0, 0), App.Vector(0, 0, 1), 18), math.radians(-131), math.radians(-49)),
    Part.LineSegment(App.Vector(12, -14, 0), App.Vector(12, -22, 0)),
    Part.LineSegment(App.Vector(12, -22, 0), App.Vector(-12, -22, 0)),
    Part.LineSegment(App.Vector(-12, -22, 0), App.Vector(-12, -14, 0)),
], False)
sketch6.addConstraint([
    Sketcher.Constraint("Coincident", 0, 2, 1, 1),
    Sketcher.Constraint("Coincident", 1, 2, 2, 1),
    Sketcher.Constraint("Coincident", 2, 2, 3, 1),
    Sketcher.Constraint("Coincident", 3, 2, 0, 1),
    Sketcher.Constraint("Vertical", 1),
    Sketcher.Constraint("Horizontal", 2),
    Sketcher.Constraint("Vertical", 3),
    Sketcher.Constraint("Coincident", 0, 3, -1, 1),
    Sketcher.Constraint("Horizontal", 0, 2, 3, 2),
    Sketcher.Constraint("Radius", 0, Q("0.7235 in")),
    Sketcher.Constraint("DistanceY", 1, 2, 1, 1, Q("0.3174 in")),
    Sketcher.Constraint("DistanceX", 2, 2, 2, 1, 23.9834),
])
pocket1 = body.newObject("PartDesign::Pocket", "Pocket")
pocket1.Profile = sketch6
pocket1.setExpression("Length", "Params.pocket1_length")
pocket1.Reversed = True

doc.recompute()
